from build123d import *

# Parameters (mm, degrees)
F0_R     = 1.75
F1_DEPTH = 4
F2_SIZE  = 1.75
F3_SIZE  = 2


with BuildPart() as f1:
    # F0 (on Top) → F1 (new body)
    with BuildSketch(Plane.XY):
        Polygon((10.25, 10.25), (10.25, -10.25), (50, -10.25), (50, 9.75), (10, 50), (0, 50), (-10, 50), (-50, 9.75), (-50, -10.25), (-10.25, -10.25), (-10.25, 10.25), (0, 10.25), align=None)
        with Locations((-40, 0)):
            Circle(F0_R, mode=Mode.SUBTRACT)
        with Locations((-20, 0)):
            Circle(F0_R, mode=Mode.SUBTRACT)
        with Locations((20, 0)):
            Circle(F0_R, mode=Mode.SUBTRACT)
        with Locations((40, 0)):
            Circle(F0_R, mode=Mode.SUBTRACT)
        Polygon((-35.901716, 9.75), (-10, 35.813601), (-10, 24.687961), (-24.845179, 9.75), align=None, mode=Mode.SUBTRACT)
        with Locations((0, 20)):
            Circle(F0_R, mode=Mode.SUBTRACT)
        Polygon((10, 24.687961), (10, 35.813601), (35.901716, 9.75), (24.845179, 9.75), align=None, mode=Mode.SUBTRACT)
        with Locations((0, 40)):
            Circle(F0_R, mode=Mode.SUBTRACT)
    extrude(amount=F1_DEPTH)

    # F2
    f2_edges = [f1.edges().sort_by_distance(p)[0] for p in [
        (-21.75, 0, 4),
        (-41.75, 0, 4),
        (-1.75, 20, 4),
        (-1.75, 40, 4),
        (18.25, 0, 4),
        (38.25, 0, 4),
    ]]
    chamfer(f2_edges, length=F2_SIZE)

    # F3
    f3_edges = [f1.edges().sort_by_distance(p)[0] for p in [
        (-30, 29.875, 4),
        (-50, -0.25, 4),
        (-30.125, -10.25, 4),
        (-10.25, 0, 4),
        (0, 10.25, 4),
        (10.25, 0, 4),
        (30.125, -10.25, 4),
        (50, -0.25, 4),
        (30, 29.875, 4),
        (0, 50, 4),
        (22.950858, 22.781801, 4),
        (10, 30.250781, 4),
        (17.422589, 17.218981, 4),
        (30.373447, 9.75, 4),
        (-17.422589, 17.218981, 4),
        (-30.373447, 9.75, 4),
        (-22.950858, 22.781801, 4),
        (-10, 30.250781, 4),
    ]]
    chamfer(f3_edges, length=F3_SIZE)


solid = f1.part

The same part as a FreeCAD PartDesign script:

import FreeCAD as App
import Part
import Sketcher
from FreeCAD import Vector
Q = App.Units.Quantity


def edges_at(feature, points):
    """Names of the edges that pass closest to the given points."""
    edges = feature.Shape.Edges
    near = lambda p: min(range(len(edges)), key=lambda i: edges[i].distToShape(Part.Vertex(*p))[0])
    return sorted({f"Edge{near(p) + 1}" for p in points})


def add_polygon(sketch, points):
    """Adds a closed chain of lines whose ends are joined by coincident constraints."""
    first, n = sketch.GeometryCount, len(points)
    for a, b in zip(points, points[1:] + points[:1]):
        sketch.addGeometry(Part.LineSegment(App.Vector(*a, 0), App.Vector(*b, 0)), False)
    for i in range(n):
        sketch.addConstraint(Sketcher.Constraint("Coincident", first + i, 2, first + (i + 1) % n, 1))

doc = App.newDocument("Part")
body = doc.addObject("PartDesign::Body", "Body")

sketch1 = doc.addObject("Sketcher::SketchObject", "Sketch")
body.addObject(sketch1)
sketch1.AttachmentSupport = (doc.XY_Plane, [""])
sketch1.MapMode = "FlatFace"
add_polygon(sketch1, [(10.2, 10.2), (10.2, -10.2), (50, -10.2), (50, 9.8), (10, 50), (-10, 50), (-50, 9.8), (-50, -10.2), (-10.2, -10.2), (-10.2, 10.2)])
sketch1.addGeometry(Part.Circle(Vector(-40, 0, 0), Vector(0, 0, 1), 1.8), False)
sketch1.addGeometry(Part.Circle(Vector(-20, 0, 0), Vector(0, 0, 1), 1.8), False)
sketch1.addGeometry(Part.Circle(Vector(20, 0, 0), Vector(0, 0, 1), 1.8), False)
sketch1.addGeometry(Part.Circle(Vector(40, 0, 0), Vector(0, 0, 1), 1.8), False)
add_polygon(sketch1, [(-24.8, 9.8), (-35.9, 9.8), (-10, 35.8), (-10, 24.7)])
sketch1.addGeometry(Part.Circle(Vector(0, 20, 0), Vector(0, 0, 1), 1.8), False)
add_polygon(sketch1, [(24.8, 9.8), (10, 24.7), (10, 35.8), (35.9, 9.8)])
sketch1.addGeometry(Part.Circle(Vector(0, 40, 0), Vector(0, 0, 1), 1.8), False)
sketch1.addConstraint([
    Sketcher.Constraint("Vertical", 0),
    Sketcher.Constraint("Horizontal", 1),
    Sketcher.Constraint("Vertical", 2),
    Sketcher.Constraint("Horizontal", 4),
    Sketcher.Constraint("Vertical", 6),
    Sketcher.Constraint("Horizontal", 7),
    Sketcher.Constraint("Vertical", 8),
    Sketcher.Constraint("Horizontal", 9),
    Sketcher.Constraint("Horizontal", 14),
    Sketcher.Constraint("Vertical", 16),
    Sketcher.Constraint("Vertical", 20),
    Sketcher.Constraint("Horizontal", 22),
    Sketcher.Constraint("Equal", 10, 11),
    Sketcher.Constraint("Equal", 11, 12),
    Sketcher.Constraint("Equal", 12, 13),
    Sketcher.Constraint("Equal", 13, 18),
    Sketcher.Constraint("Equal", 18, 23),
    Sketcher.Constraint("Symmetric", 11, 3, 12, 3, -1, 1),
    Sketcher.Constraint("Symmetric", 10, 3, 13, 3, -1, 1),
    Sketcher.Constraint("Symmetric", 0, 2, 8, 2, -1, 1),
    Sketcher.Constraint("Symmetric", 2, 2, 5, 2, -2),
    Sketcher.Constraint("Symmetric", 16, 2, 19, 2, -2),
    Sketcher.Constraint("Symmetric", 14, 2, 21, 2, -2),
    Sketcher.Constraint("PointOnObject", 10, 3, -1),
    Sketcher.Constraint("PointOnObject", 11, 3, -1),
    Sketcher.Constraint("PointOnObject", 18, 3, -2),
    Sketcher.Constraint("PointOnObject", 23, 3, -2),
    Sketcher.Constraint("Parallel", 5, 15),
    Sketcher.Constraint("Parallel", 15, 17),
    Sketcher.Constraint("Parallel", 3, 19),
    Sketcher.Constraint("Parallel", 19, 21),
    Sketcher.Constraint("Horizontal", 1, 2, 6, 2),
    Sketcher.Constraint("Horizontal", 5, 2, 14, 2),
    Sketcher.Constraint("Horizontal", 15, 2, 20, 2),
    Sketcher.Constraint("Vertical", 4, 2, 15, 2),
    Sketcher.Constraint("Equal", 9, 0),
    Sketcher.Constraint("Equal", 4, 2),
    Sketcher.Constraint("Diameter", 10, Q("3.5 mm")),
    Sketcher.Constraint("DistanceX", 4, 2, 4, 1, Q("20 mm")),
    Sketcher.Constraint("DistanceX", 9, 1, 9, 2, Q("20.5 mm")),
    Sketcher.Constraint("DistanceX", 10, 3, -1, 1, Q("40 mm")),
    Sketcher.Constraint("DistanceX", 11, 3, -1, 1, Q("20 mm")),
    Sketcher.Constraint("DistanceY", -1, 1, 18, 3, Q("20 mm")),
    Sketcher.Constraint("DistanceY", -1, 1, 23, 3, Q("40 mm")),
    Sketcher.Constraint("DistanceX", -1, 1, 1, 2, Q("50 mm")),
    Sketcher.Constraint("DistanceY", -1, 1, 3, 2, Q("50 mm")),
    Sketcher.Constraint("DistanceY", 16, 2, 16, 1, Q("11.12564 mm")),
    Sketcher.Constraint("DistanceY", -1, 1, 15, 2, Q("35.813601 mm")),
])
pad1 = doc.addObject("PartDesign::Pad", "Pad")
body.addObject(pad1)
pad1.Profile = sketch1
pad1.Length = 4
doc.recompute()

chamfer = doc.addObject("PartDesign::Chamfer", "Chamfer")
body.addObject(chamfer)
chamfer.Base = (pad1, edges_at(pad1, [
    (-21.75, 0, 4),
    (-41.75, 0, 4),
    (-1.75, 20, 4),
    (-1.75, 40, 4),
    (18.25, 0, 4),
    (38.25, 0, 4),
]))
chamfer.Size = 1.75
doc.recompute()

chamfer2 = doc.addObject("PartDesign::Chamfer", "Chamfer001")
body.addObject(chamfer2)
chamfer2.Base = (chamfer, edges_at(chamfer, [
    (-30, 29.875, 4),
    (-50, -0.25, 4),
    (-30.125, -10.25, 4),
    (-10.25, 0, 4),
    (0, 10.25, 4),
    (10.25, 0, 4),
    (30.125, -10.25, 4),
    (50, -0.25, 4),
    (30, 29.875, 4),
    (0, 50, 4),
    (22.951, 22.782, 4),
    (10, 30.251, 4),
    (17.423, 17.219, 4),
    (30.373, 9.75, 4),
    (-17.423, 17.219, 4),
    (-30.373, 9.75, 4),
    (-22.951, 22.782, 4),
    (-10, 30.251, 4),
]))
chamfer2.Size = 2

doc.recompute()
